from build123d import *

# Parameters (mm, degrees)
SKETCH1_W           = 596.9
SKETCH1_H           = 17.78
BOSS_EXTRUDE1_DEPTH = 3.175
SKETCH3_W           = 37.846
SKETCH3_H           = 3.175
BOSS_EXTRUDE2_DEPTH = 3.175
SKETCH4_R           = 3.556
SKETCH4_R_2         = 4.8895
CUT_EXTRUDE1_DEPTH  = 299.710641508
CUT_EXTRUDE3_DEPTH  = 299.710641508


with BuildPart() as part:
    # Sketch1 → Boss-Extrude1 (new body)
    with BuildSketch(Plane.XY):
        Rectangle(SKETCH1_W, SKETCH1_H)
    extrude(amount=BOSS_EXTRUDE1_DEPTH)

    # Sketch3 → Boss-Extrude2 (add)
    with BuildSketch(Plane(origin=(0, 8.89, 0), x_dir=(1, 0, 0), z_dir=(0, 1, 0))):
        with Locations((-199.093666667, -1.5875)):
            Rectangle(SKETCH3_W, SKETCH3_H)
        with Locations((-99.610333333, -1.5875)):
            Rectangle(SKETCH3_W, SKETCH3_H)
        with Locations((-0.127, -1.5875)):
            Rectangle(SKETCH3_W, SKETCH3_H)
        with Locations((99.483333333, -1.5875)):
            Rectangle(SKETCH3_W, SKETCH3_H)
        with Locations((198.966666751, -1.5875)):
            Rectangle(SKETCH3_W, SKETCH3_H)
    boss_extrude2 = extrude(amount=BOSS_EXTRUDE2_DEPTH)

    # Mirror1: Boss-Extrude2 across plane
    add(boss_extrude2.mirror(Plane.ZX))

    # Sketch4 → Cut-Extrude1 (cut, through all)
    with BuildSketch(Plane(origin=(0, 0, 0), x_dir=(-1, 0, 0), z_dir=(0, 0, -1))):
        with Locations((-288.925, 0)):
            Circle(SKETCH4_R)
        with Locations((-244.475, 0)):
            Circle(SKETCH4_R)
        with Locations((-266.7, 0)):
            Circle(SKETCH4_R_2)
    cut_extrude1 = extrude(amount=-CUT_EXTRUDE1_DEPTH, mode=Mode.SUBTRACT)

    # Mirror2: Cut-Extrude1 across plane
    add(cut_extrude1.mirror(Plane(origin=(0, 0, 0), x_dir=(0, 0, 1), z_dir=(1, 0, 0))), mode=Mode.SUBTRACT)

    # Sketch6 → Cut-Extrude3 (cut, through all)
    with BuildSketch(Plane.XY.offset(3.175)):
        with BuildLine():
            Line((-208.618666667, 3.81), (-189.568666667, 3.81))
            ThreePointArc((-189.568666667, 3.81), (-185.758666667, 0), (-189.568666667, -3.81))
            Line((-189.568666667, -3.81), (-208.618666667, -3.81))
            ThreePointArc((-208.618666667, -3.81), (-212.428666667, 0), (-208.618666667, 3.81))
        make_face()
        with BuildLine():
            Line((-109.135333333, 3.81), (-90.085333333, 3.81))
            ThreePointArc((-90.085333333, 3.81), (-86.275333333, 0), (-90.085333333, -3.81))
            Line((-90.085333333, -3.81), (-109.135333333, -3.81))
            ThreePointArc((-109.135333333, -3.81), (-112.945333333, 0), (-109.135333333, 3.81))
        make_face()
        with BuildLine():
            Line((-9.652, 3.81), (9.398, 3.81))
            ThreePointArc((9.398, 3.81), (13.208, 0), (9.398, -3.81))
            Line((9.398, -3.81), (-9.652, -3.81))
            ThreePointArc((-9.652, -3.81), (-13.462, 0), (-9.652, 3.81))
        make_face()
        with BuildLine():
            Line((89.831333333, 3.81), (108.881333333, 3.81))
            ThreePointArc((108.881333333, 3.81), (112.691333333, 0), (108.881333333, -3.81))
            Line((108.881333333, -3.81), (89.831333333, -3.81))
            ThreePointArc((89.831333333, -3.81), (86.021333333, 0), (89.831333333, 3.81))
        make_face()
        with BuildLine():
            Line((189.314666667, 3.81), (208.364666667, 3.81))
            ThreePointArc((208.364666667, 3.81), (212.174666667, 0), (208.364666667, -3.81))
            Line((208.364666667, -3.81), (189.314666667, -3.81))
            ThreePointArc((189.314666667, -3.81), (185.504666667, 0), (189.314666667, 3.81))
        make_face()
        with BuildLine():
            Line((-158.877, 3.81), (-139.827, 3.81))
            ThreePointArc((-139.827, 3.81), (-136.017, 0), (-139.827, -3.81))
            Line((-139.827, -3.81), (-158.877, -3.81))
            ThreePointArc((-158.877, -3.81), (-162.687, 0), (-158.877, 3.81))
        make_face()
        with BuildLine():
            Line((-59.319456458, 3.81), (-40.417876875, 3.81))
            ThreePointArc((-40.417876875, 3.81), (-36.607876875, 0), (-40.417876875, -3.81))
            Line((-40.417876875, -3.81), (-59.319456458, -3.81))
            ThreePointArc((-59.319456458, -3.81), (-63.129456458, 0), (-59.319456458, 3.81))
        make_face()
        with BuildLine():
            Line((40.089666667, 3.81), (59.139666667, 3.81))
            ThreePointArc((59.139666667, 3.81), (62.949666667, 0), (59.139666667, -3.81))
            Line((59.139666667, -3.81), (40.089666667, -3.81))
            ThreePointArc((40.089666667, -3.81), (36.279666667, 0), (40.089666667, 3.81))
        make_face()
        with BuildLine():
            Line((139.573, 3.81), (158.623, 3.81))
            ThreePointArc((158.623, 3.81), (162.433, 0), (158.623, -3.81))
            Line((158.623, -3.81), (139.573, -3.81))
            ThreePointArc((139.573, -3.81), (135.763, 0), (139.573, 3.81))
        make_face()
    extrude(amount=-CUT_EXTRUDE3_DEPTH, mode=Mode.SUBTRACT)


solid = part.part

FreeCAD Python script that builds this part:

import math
import FreeCAD as App
import Part
import Sketcher
from FreeCAD import Vector
Q = App.Units.Quantity


def add_polygon(sketch, points):
    """Adds a closed chain of lines whose ends are joined by coincident constraints."""
    first, n = sketch.GeometryCount, len(points)
    for a, b in zip(points, points[1:] + points[:1]):
        sketch.addGeometry(Part.LineSegment(App.Vector(*a, 0), App.Vector(*b, 0)), False)
    for i in range(n):
        sketch.addConstraint(Sketcher.Constraint("Coincident", first + i, 2, first + (i + 1) % n, 1))

doc = App.newDocument("Part")
body = doc.addObject("PartDesign::Body", "Body")

# Sketch on XY plane
sketch1 = body.newObject("Sketcher::SketchObject", "Sketch")
sketch1.AttachmentSupport = (doc.getObject("XY_Plane"), [""])
sketch1.MapMode = "FlatFace"
add_polygon(sketch1, [(-298.45, 8.89), (-298.45, -8.89), (298.45, -8.89), (298.45, 8.89)])  # lines 0-3
sketch1.addConstraint([
    Sketcher.Constraint("Vertical", 0),
    Sketcher.Constraint("Horizontal", 1),
    Sketcher.Constraint("Vertical", 2),
    Sketcher.Constraint("Horizontal", 3),
    Sketcher.Constraint("Symmetric", 0, 2, 2, 2, -1, 1),
    Sketcher.Constraint("DistanceX", 1, 1, 1, 2, Q("23.5 in")),
    Sketcher.Constraint("DistanceY", 0, 2, 0, 1, Q("0.7 in")),
])
pad1 = body.newObject("PartDesign::Pad", "Pad")
pad1.Profile = sketch1
pad1.Length = Q("0.125 in")

# Sketch on XZ plane
sketch2 = body.newObject("Sketcher::SketchObject", "Sketch001")
sketch2.AttachmentSupport = (doc.getObject("XZ_Plane"), [""])
sketch2.MapMode = "FlatFace"
sketch2.AttachmentOffset = App.Placement(Vector(0, 0, -0.35 * 25.4), App.Rotation())
add_polygon(sketch2, [(-218.016667, 0), (-218.016667, 3.175), (-180.170667, 3.175), (-180.170667, 0)])  # lines 0-3
add_polygon(sketch2, [(-118.533333, 0), (-118.533333, 3.175), (-80.687333, 3.175), (-80.687333, 0)])  # lines 4-7
add_polygon(sketch2, [(-19.05, 0), (-19.05, 3.175), (18.796, 3.175), (18.796, 0)])  # lines 8-11
add_polygon(sketch2, [(80.560333, 0), (80.560333, 3.175), (118.406333, 3.175), (118.406333, 0)])  # lines 12-15
add_polygon(sketch2, [(180.043667, 0), (180.043667, 3.175), (217.889667, 3.175), (217.889667, 0)])  # lines 16-19
sketch2.addConstraint([
    Sketcher.Constraint("Vertical", 0),
    Sketcher.Constraint("Horizontal", 1),
    Sketcher.Constraint("Vertical", 2),
    Sketcher.Constraint("Horizontal", 3),
    Sketcher.Constraint("Vertical", 4),
    Sketcher.Constraint("Horizontal", 5),
    Sketcher.Constraint("Vertical", 6),
    Sketcher.Constraint("Horizontal", 7),
    Sketcher.Constraint("Vertical", 8),
    Sketcher.Constraint("Horizontal", 9),
    Sketcher.Constraint("Vertical", 10),
    Sketcher.Constraint("Horizontal", 11),
    Sketcher.Constraint("Vertical", 12),
    Sketcher.Constraint("Horizontal", 13),
    Sketcher.Constraint("Vertical", 14),
    Sketcher.Constraint("Horizontal", 15),
    Sketcher.Constraint("Vertical", 16),
    Sketcher.Constraint("Horizontal", 17),
    Sketcher.Constraint("Vertical", 18),
    Sketcher.Constraint("Horizontal", 19),
    Sketcher.Constraint("PointOnObject", 2, 2, -1),
    Sketcher.Constraint("PointOnObject", 6, 2, -1),
    Sketcher.Constraint("PointOnObject", 10, 2, -1),
    Sketcher.Constraint("PointOnObject", 14, 2, -1),
    Sketcher.Constraint("PointOnObject", 18, 2, -1),
    Sketcher.Constraint("Horizontal", 1, 2, 4, 2),
    Sketcher.Constraint("Horizontal", 5, 2, 8, 2),
    Sketcher.Constraint("Horizontal", 9, 2, 12, 2),
    Sketcher.Constraint("Horizontal", 13, 2, 16, 2),
    Sketcher.Constraint("Equal", 3, 5),
    Sketcher.Constraint("Equal", 7, 9),
    Sketcher.Constraint("Equal", 11, 13),
    Sketcher.Constraint("Equal", 15, 17),
    Sketcher.Constraint("DistanceX", 1, 1, 1, 2, Q("1.49 in")),
    Sketcher.Constraint("DistanceY", 0, 1, 0, 2, Q("0.125 in")),
    Sketcher.Constraint("DistanceX", 8, 2, -1, 1, Q("0.75 in")),
    Sketcher.Constraint("DistanceX", 0, 2, -1, 1, 218.016667),
    Sketcher.Constraint("DistanceX", 4, 2, -1, 1, 118.533333),
    Sketcher.Constraint("DistanceX", -1, 1, 12, 2, 80.560333),
    Sketcher.Constraint("DistanceX", -1, 1, 16, 2, 180.043667),
])
pad2 = body.newObject("PartDesign::Pad", "Pad001")
pad2.Profile = sketch2
pad2.Length = Q("0.125 in")
pad2.Reversed = True
doc.recompute()

mirrored = body.newObject("PartDesign::Mirrored", "Mirrored")
mirrored.Originals = [pad2]
mirrored.MirrorPlane = (doc.getObject("XZ_Plane"), [""])
body.Tip = mirrored

# Sketch on XY plane
sketch3 = body.newObject("Sketcher::SketchObject", "Sketch002")
sketch3.AttachmentSupport = (doc.getObject("XY_Plane"), [""])
sketch3.MapMode = "FlatFace"
sketch3.addGeometry([
    Part.Circle(Vector(288.925, 0, 0), Vector(0, 0, 1), 3.556),
    Part.Circle(Vector(244.475, 0, 0), Vector(0, 0, 1), 3.556),
    Part.Circle(Vector(266.7, 0, 0), Vector(0, 0, 1), 4.8895),
], False)
sketch3.addConstraint([
    Sketcher.Constraint("Equal", 0, 1),
    Sketcher.Constraint("PointOnObject", 0, 3, -1),
    Sketcher.Constraint("PointOnObject", 1, 3, -1),
    Sketcher.Constraint("PointOnObject", 2, 3, -1),
    Sketcher.Constraint("Diameter", 0, Q("0.28 in")),
    Sketcher.Constraint("Diameter", 2, Q("0.385 in")),
    Sketcher.Constraint("DistanceX", -1, 1, 2, 3, Q("10.5 in")),
    Sketcher.Constraint("DistanceX", 1, 3, 0, 3, Q("1.75 in")),
    Sketcher.Constraint("DistanceX", -1, 1, 0, 3, Q("11.375 in")),
])
pocket1 = body.newObject("PartDesign::Pocket", "Pocket")
pocket1.Profile = sketch3
pocket1.Type = "ThroughAll"
pocket1.Reversed = True
doc.recompute()

mirrored2 = body.newObject("PartDesign::Mirrored", "Mirrored001")
mirrored2.Originals = [pocket1]
mirrored2.MirrorPlane = (doc.getObject("YZ_Plane"), [""])
body.Tip = mirrored2

# Sketch on XY plane
sketch4 = body.newObject("Sketcher::SketchObject", "Sketch003")
sketch4.AttachmentSupport = (doc.getObject("XY_Plane"), [""])
sketch4.MapMode = "FlatFace"
sketch4.AttachmentOffset = App.Placement(Vector(0, 0, 0.125 * 25.4), App.Rotation())
sketch4.addGeometry([
    Part.LineSegment(Vector(-189.568667, 3.81, 0), Vector(-208.618667, 3.81, 0)),  # 0
    Part.ArcOfCircle(Part.Circle(Vector(-208.618667, 0, 0), Vector(0, 0, 1), 3.81), math.radians(90), math.radians(270)),  # 1
    Part.LineSegment(Vector(-208.618667, -3.81, 0), Vector(-189.568667, -3.81, 0)),  # 2
    Part.ArcOfCircle(Part.Circle(Vector(-189.568667, 0, 0), Vector(0, 0, 1), 3.81), math.radians(-90), math.radians(90)),  # 3
    Part.LineSegment(Vector(-90.085333, 3.81, 0), Vector(-109.135333, 3.81, 0)),  # 4
    Part.ArcOfCircle(Part.Circle(Vector(-109.135333, 0, 0), Vector(0, 0, 1), 3.81), math.radians(90), math.radians(270)),  # 5
    Part.LineSegment(Vector(-109.135333, -3.81, 0), Vector(-90.085333, -3.81, 0)),  # 6
    Part.ArcOfCircle(Part.Circle(Vector(-90.085333, 0, 0), Vector(0, 0, 1), 3.81), math.radians(-90), math.radians(90)),  # 7
    Part.LineSegment(Vector(9.398, 3.81, 0), Vector(-9.652, 3.81, 0)),  # 8
    Part.ArcOfCircle(Part.Circle(Vector(-9.652, 0, 0), Vector(0, 0, 1), 3.81), math.radians(90), math.radians(270)),  # 9
    Part.LineSegment(Vector(-9.652, -3.81, 0), Vector(9.398, -3.81, 0)),  # 10
    Part.ArcOfCircle(Part.Circle(Vector(9.398, 0, 0), Vector(0, 0, 1), 3.81), math.radians(-90), math.radians(90)),  # 11
    Part.LineSegment(Vector(108.881333, 3.81, 0), Vector(89.831333, 3.81, 0)),  # 12
    Part.ArcOfCircle(Part.Circle(Vector(89.831333, 0, 0), Vector(0, 0, 1), 3.81), math.radians(90), math.radians(270)),  # 13
    Part.LineSegment(Vector(89.831333, -3.81, 0), Vector(108.881333, -3.81, 0)),  # 14
    Part.ArcOfCircle(Part.Circle(Vector(108.881333, 0, 0), Vector(0, 0, 1), 3.81), math.radians(-90), math.radians(90)),  # 15
    Part.LineSegment(Vector(208.364667, 3.81, 0), Vector(189.314667, 3.81, 0)),  # 16
    Part.ArcOfCircle(Part.Circle(Vector(189.314667, 0, 0), Vector(0, 0, 1), 3.81), math.radians(90), math.radians(270)),  # 17
    Part.LineSegment(Vector(189.314667, -3.81, 0), Vector(208.364667, -3.81, 0)),  # 18
    Part.ArcOfCircle(Part.Circle(Vector(208.364667, 0, 0), Vector(0, 0, 1), 3.81), math.radians(-90), math.radians(90)),  # 19
    Part.LineSegment(Vector(-139.827, 3.81, 0), Vector(-158.877, 3.81, 0)),  # 20
    Part.ArcOfCircle(Part.Circle(Vector(-158.877, 0, 0), Vector(0, 0, 1), 3.81), math.radians(90), math.radians(270)),  # 21
    Part.LineSegment(Vector(-158.877, -3.81, 0), Vector(-139.827, -3.81, 0)),  # 22
    Part.ArcOfCircle(Part.Circle(Vector(-139.827, 0, 0), Vector(0, 0, 1), 3.81), math.radians(-90), math.radians(90)),  # 23
    Part.LineSegment(Vector(-40.417877, 3.81, 0), Vector(-59.319456, 3.81, 0)),  # 24
    Part.ArcOfCircle(Part.Circle(Vector(-59.319456, 0, 0), Vector(0, 0, 1), 3.81), math.radians(90), math.radians(270)),  # 25
    Part.LineSegment(Vector(-59.319456, -3.81, 0), Vector(-40.417877, -3.81, 0)),  # 26
    Part.ArcOfCircle(Part.Circle(Vector(-40.417877, 0, 0), Vector(0, 0, 1), 3.81), math.radians(-90), math.radians(90)),  # 27
    Part.LineSegment(Vector(59.139667, 3.81, 0), Vector(40.089667, 3.81, 0)),  # 28
    Part.ArcOfCircle(Part.Circle(Vector(40.089667, 0, 0), Vector(0, 0, 1), 3.81), math.radians(90), math.radians(270)),  # 29
    Part.LineSegment(Vector(40.089667, -3.81, 0), Vector(59.139667, -3.81, 0)),  # 30
    Part.ArcOfCircle(Part.Circle(Vector(59.139667, 0, 0), Vector(0, 0, 1), 3.81), math.radians(-90), math.radians(90)),  # 31
    Part.LineSegment(Vector(158.623, 3.81, 0), Vector(139.573, 3.81, 0)),  # 32
    Part.ArcOfCircle(Part.Circle(Vector(139.573, 0, 0), Vector(0, 0, 1), 3.81), math.radians(90), math.radians(270)),  # 33
    Part.LineSegment(Vector(139.573, -3.81, 0), Vector(158.623, -3.81, 0)),  # 34
    Part.ArcOfCircle(Part.Circle(Vector(158.623, 0, 0), Vector(0, 0, 1), 3.81), math.radians(-90), math.radians(90)),  # 35
], False)
sketch4.addConstraint([
    Sketcher.Constraint("Tangent", 0, 2, 1, 1),
    Sketcher.Constraint("Tangent", 1, 2, 2, 1),
    Sketcher.Constraint("Tangent", 2, 2, 3, 1),
    Sketcher.Constraint("Tangent", 3, 2, 0, 1),
    Sketcher.Constraint("Tangent", 4, 2, 5, 1),
    Sketcher.Constraint("Tangent", 5, 2, 6, 1),
    Sketcher.Constraint("Tangent", 6, 2, 7, 1),
    Sketcher.Constraint("Tangent", 7, 2, 4, 1),
    Sketcher.Constraint("Tangent", 8, 2, 9, 1),
    Sketcher.Constraint("Tangent", 9, 2, 10, 1),
    Sketcher.Constraint("Tangent", 10, 2, 11, 1),
    Sketcher.Constraint("Tangent", 11, 2, 8, 1),
    Sketcher.Constraint("Tangent", 12, 2, 13, 1),
    Sketcher.Constraint("Tangent", 13, 2, 14, 1),
    Sketcher.Constraint("Tangent", 14, 2, 15, 1),
    Sketcher.Constraint("Tangent", 15, 2, 12, 1),
    Sketcher.Constraint("Tangent", 16, 2, 17, 1),
    Sketcher.Constraint("Tangent", 17, 2, 18, 1),
    Sketcher.Constraint("Tangent", 18, 2, 19, 1),
    Sketcher.Constraint("Tangent", 19, 2, 16, 1),
    Sketcher.Constraint("Tangent", 20, 2, 21, 1),
    Sketcher.Constraint("Tangent", 21, 2, 22, 1),
    Sketcher.Constraint("Tangent", 22, 2, 23, 1),
    Sketcher.Constraint("Tangent", 23, 2, 20, 1),
    Sketcher.Constraint("Tangent", 24, 2, 25, 1),
    Sketcher.Constraint("Tangent", 25, 2, 26, 1),
    Sketcher.Constraint("Tangent", 26, 2, 27, 1),
    Sketcher.Constraint("Tangent", 27, 2, 24, 1),
    Sketcher.Constraint("Tangent", 28, 2, 29, 1),
    Sketcher.Constraint("Tangent", 29, 2, 30, 1),
    Sketcher.Constraint("Tangent", 30, 2, 31, 1),
    Sketcher.Constraint("Tangent", 31, 2, 28, 1),
    Sketcher.Constraint("Tangent", 32, 2, 33, 1),
    Sketcher.Constraint("Tangent", 33, 2, 34, 1),
    Sketcher.Constraint("Tangent", 34, 2, 35, 1),
    Sketcher.Constraint("Tangent", 35, 2, 32, 1),
    Sketcher.Constraint("Horizontal", 0),
    Sketcher.Constraint("Horizontal", 2),
    Sketcher.Constraint("Horizontal", 4),
    Sketcher.Constraint("Horizontal", 6),
    Sketcher.Constraint("Horizontal", 8),
    Sketcher.Constraint("Horizontal", 10),
    Sketcher.Constraint("Horizontal", 12),
    Sketcher.Constraint("Horizontal", 14),
    Sketcher.Constraint("Horizontal", 16),
    Sketcher.Constraint("Horizontal", 18),
    Sketcher.Constraint("Horizontal", 20),
    Sketcher.Constraint("Horizontal", 22),
    Sketcher.Constraint("Horizontal", 24),
    Sketcher.Constraint("Horizontal", 26),
    Sketcher.Constraint("Horizontal", 28),
    Sketcher.Constraint("Horizontal", 30),
    Sketcher.Constraint("Horizontal", 32),
    Sketcher.Constraint("Horizontal", 34),
    Sketcher.Constraint("Equal", 3, 5),
    Sketcher.Constraint("Equal", 7, 9),
    Sketcher.Constraint("Equal", 11, 13),
    Sketcher.Constraint("Equal", 15, 17),
    Sketcher.Constraint("Equal", 19, 21),
    Sketcher.Constraint("Equal", 23, 25),
    Sketcher.Constraint("Equal", 27, 29),
    Sketcher.Constraint("Equal", 31, 33),
    Sketcher.Constraint("PointOnObject", 1, 3, -1),
    Sketcher.Constraint("PointOnObject", 5, 3, -1),
    Sketcher.Constraint("PointOnObject", 9, 3, -1),
    Sketcher.Constraint("PointOnObject", 13, 3, -1),
    Sketcher.Constraint("PointOnObject", 17, 3, -1),
    Sketcher.Constraint("PointOnObject", 21, 3, -1),
    Sketcher.Constraint("PointOnObject", 25, 3, -1),
    Sketcher.Constraint("PointOnObject", 29, 3, -1),
    Sketcher.Constraint("PointOnObject", 33, 3, -1),
    Sketcher.Constraint("Equal", 2, 4),
    Sketcher.Constraint("Equal", 6, 8),
    Sketcher.Constraint("Equal", 10, 12),
    Sketcher.Constraint("Equal", 14, 16),
    Sketcher.Constraint("Equal", 18, 20),
    Sketcher.Constraint("Equal", 22, 28),
    Sketcher.Constraint("Equal", 30, 32),
    Sketcher.Constraint("Radius", 1, Q("0.15 in")),
    Sketcher.Constraint("DistanceX", 3, 3, 13, 3, Q("11 in")),
    Sketcher.Constraint("DistanceX", 7, 3, 17, 3, Q("11 in")),
    Sketcher.Constraint("DistanceX", 0, 2, 0, 1, Q("0.75 in")),
    Sketcher.Constraint("DistanceX", 9, 3, -1, 1, Q("0.38 in")),
    Sketcher.Constraint("DistanceX", 21, 3, -1, 1, Q("6.255 in")),
    Sketcher.Constraint("DistanceX", -1, 1, 33, 3, Q("5.495 in")),
    Sketcher.Constraint("DistanceX", 24, 2, 24, 1, 18.90158),
    Sketcher.Constraint("DistanceX", 1, 3, -1, 1, 208.618667),
    Sketcher.Constraint("DistanceX", 5, 3, -1, 1, 109.135333),
    Sketcher.Constraint("DistanceX", 25, 3, -1, 1, 59.319456),
    Sketcher.Constraint("DistanceX", -1, 1, 29, 3, 40.089667),
])
pocket2 = body.newObject("PartDesign::Pocket", "Pocket001")
pocket2.Profile = sketch4
pocket2.Type = "ThroughAll"

doc.recompute()
